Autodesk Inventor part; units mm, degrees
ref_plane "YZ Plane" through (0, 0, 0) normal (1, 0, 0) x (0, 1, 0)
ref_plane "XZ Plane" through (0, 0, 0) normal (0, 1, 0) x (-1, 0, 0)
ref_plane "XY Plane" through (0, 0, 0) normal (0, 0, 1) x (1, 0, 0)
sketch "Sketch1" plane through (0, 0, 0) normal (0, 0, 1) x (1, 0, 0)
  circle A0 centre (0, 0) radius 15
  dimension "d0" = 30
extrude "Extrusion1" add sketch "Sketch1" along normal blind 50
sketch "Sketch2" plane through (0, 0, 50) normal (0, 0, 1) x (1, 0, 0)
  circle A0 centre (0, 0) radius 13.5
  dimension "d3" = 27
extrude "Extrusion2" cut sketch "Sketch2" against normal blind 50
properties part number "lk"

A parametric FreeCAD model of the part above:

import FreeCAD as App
import Part
import Sketcher

V = App.Vector
Q = App.Units.Quantity

doc = App.newDocument("Part")
body = doc.addObject("PartDesign::Body", "Body")

# Sketch on XY plane
sketch1 = body.newObject("Sketcher::SketchObject", "Sketch")
sketch1.AttachmentSupport = (doc.getObject("XY_Plane"), [""])
sketch1.MapMode = "FlatFace"
sketch1.addGeometry(Part.Circle(V(0, 0, 0), V(0, 0, 1), 15), False)
sketch1.addConstraint([
    Sketcher.Constraint("Coincident", 0, 3, -1, 1),
    Sketcher.Constraint("Diameter", 0, Q("1.1811 in")),
])
pad1 = body.newObject("PartDesign::Pad", "Pad")
pad1.Profile = sketch1
pad1.Length = Q("1.9685039 in")

# Sketch on XY plane
sketch2 = body.newObject("Sketcher::SketchObject", "Sketch001")
sketch2.AttachmentSupport = (doc.getObject("XY_Plane"), [""])
sketch2.MapMode = "FlatFace"
sketch2.AttachmentOffset = App.Placement(V(0, 0, 1.9685039 * 25.4), App.Rotation())
sketch2.addGeometry(Part.Circle(V(0, 0, 0), V(0, 0, 1), 14), False)
sketch2.addConstraint([
    Sketcher.Constraint("Coincident", 0, 3, -1, 1),
    Sketcher.Constraint("Diameter", 0, Q("1.063 in")),
])
pocket1 = body.newObject("PartDesign::Pocket", "Pocket")
pocket1.Profile = sketch2
pocket1.Length = Q("1.9685039 in")

doc.recompute()
